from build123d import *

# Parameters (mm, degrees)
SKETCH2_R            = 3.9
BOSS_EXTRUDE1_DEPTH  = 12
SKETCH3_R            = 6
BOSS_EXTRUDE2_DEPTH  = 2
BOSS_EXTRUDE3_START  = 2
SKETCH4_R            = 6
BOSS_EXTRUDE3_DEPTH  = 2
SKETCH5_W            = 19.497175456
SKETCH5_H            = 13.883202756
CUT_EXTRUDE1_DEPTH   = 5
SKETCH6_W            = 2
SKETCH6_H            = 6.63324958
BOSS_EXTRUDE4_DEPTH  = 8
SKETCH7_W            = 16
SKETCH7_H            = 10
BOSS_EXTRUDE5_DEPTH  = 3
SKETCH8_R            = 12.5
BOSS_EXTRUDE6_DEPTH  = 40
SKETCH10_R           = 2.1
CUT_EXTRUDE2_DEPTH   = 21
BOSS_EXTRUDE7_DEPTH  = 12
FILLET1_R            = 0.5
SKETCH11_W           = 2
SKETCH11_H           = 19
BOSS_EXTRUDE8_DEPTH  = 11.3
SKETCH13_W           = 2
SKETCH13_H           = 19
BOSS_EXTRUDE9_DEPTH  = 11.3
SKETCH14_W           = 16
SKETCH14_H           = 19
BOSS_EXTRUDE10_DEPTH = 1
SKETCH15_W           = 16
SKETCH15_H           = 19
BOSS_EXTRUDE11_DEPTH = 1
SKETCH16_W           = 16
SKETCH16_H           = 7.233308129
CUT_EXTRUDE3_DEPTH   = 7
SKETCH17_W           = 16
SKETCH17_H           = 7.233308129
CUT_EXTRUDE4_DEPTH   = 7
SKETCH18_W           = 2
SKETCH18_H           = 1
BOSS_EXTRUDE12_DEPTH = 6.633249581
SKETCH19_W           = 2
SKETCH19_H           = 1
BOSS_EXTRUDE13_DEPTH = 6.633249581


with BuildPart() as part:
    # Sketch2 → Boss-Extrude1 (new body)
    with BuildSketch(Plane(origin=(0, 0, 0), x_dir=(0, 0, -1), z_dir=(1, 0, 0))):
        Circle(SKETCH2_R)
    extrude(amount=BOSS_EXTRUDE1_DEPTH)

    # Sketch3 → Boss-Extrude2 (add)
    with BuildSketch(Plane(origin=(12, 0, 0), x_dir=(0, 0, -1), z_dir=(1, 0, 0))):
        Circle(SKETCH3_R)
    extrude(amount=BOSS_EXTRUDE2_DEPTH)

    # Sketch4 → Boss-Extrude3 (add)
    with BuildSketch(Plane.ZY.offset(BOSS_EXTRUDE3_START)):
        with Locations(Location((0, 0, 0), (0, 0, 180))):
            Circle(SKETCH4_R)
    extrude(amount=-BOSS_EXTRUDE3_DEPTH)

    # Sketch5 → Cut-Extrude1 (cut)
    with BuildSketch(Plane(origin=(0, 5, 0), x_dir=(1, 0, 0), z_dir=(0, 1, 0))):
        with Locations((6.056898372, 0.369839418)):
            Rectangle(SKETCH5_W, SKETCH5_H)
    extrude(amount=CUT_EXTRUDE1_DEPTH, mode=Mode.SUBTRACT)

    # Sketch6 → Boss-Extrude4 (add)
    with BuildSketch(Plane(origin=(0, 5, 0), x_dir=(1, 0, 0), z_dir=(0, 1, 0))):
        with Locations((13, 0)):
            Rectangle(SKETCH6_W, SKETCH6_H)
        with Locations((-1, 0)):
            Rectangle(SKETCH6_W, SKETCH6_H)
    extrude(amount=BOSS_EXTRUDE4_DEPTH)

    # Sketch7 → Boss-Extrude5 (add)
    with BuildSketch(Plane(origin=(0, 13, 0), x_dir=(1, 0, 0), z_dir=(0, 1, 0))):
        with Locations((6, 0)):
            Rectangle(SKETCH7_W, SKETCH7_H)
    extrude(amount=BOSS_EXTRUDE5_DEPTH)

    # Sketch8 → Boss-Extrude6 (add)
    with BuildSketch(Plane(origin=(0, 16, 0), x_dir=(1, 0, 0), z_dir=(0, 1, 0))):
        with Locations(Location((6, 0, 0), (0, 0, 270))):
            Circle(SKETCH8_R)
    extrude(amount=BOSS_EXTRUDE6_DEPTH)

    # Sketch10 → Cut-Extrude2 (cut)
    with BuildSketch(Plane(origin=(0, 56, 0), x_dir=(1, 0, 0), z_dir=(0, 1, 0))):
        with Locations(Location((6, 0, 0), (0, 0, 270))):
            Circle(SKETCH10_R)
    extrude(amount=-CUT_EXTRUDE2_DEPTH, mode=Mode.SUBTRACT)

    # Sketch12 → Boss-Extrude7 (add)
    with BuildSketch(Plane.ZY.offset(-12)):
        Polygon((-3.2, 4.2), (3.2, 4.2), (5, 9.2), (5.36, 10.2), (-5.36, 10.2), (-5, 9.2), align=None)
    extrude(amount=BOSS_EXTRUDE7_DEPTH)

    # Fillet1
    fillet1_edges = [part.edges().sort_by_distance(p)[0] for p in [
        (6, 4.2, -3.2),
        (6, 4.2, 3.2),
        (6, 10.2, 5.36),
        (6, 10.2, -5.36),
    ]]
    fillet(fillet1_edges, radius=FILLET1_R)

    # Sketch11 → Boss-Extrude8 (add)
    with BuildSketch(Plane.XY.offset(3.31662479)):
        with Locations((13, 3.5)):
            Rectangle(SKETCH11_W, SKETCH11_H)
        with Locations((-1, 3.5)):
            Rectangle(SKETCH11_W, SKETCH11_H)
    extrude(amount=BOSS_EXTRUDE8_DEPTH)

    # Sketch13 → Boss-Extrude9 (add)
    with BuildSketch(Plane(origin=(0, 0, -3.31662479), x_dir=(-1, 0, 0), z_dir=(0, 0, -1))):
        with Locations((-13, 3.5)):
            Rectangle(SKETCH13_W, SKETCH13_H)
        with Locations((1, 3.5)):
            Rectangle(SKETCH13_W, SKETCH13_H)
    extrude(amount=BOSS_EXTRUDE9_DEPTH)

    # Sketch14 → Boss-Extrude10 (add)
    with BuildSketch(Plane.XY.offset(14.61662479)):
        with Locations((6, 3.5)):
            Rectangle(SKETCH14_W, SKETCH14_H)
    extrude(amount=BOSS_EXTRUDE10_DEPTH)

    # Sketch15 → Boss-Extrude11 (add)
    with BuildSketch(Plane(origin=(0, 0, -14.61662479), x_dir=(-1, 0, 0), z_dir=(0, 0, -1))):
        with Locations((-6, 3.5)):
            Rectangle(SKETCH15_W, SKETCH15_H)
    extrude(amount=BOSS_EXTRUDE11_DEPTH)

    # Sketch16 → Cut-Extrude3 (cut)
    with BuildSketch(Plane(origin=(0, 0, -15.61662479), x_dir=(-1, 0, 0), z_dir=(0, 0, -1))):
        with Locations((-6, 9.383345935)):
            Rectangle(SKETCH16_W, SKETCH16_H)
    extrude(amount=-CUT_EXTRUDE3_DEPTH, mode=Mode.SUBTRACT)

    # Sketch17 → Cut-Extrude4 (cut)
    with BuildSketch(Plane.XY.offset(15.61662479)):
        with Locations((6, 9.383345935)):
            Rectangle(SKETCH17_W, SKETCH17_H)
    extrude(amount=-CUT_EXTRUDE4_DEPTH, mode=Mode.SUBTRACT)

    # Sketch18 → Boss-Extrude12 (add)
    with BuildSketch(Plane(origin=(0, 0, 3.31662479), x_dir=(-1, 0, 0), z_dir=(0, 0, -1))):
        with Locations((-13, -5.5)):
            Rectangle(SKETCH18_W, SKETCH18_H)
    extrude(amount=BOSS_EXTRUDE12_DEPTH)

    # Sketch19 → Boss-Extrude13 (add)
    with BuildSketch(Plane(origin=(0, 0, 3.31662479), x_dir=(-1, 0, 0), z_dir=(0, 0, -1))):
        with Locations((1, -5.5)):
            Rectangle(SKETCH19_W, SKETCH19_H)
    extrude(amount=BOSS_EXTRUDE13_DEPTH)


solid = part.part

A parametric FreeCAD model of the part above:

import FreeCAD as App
import Part
import Sketcher
Q = App.Units.Quantity


def edges_at(feature, points):
    """Names of the edges that pass closest to the given points."""
    edges = feature.Shape.Edges
    near = lambda p: min(range(len(edges)), key=lambda i: edges[i].distToShape(Part.Vertex(*p))[0])
    return sorted({f"Edge{near(p) + 1}" for p in points})

doc = App.newDocument("Part")
body = doc.addObject("PartDesign::Body", "Body")

# Sketch on YZ plane
sketch1 = body.newObject("Sketcher::SketchObject", "Sketch")
sketch1.AttachmentSupport = (doc.getObject("YZ_Plane"), [""])
sketch1.MapMode = "FlatFace"
sketch1.addGeometry(Part.Circle(App.Vector(0, 0, 0), App.Vector(0, 0, 1), 3.9), False)
sketch1.addConstraint(Sketcher.Constraint("Coincident", 0, 3, -1, 1))
sketch1.addConstraint(Sketcher.Constraint("Diameter", 0, Q("7.8 mm")))
pad1 = body.newObject("PartDesign::Pad", "Pad")
pad1.Profile = sketch1
pad1.Length = 12

# Sketch on YZ plane
sketch2 = body.newObject("Sketcher::SketchObject", "Sketch001")
sketch2.AttachmentSupport = (doc.getObject("YZ_Plane"), [""])
sketch2.MapMode = "FlatFace"
sketch2.AttachmentOffset = App.Placement(App.Vector(0, 0, 12), App.Rotation())
sketch2.addGeometry(Part.Circle(App.Vector(0, 0, 0), App.Vector(0, 0, 1), 6), False)
sketch2.addConstraint(Sketcher.Constraint("Coincident", 0, 3, -1, 1))
sketch2.addConstraint(Sketcher.Constraint("Diameter", 0, Q("12 mm")))
pad2 = body.newObject("PartDesign::Pad", "Pad001")
pad2.Profile = sketch2
pad2.Length = 2

# Sketch on YZ plane
sketch3 = body.newObject("Sketcher::SketchObject", "Sketch002")
sketch3.AttachmentSupport = (doc.getObject("YZ_Plane"), [""])
sketch3.MapMode = "FlatFace"
sketch3.AttachmentOffset = App.Placement(App.Vector(0, 0, -2), App.Rotation())
sketch3.addGeometry(Part.Circle(App.Vector(0, 0, 0), App.Vector(0, 0, 1), 6), False)
sketch3.addConstraint(Sketcher.Constraint("Coincident", 0, 3, -1, 1))
sketch3.addConstraint(Sketcher.Constraint("Diameter", 0, Q("12 mm")))
pad3 = body.newObject("PartDesign::Pad", "Pad002")
pad3.Profile = sketch3
pad3.Length = 2

# Sketch on XZ plane
sketch4 = body.newObject("Sketcher::SketchObject", "Sketch003")
sketch4.AttachmentSupport = (doc.getObject("XZ_Plane"), [""])
sketch4.MapMode = "FlatFace"
sketch4.AttachmentOffset = App.Placement(App.Vector(0, 0, -5), App.Rotation())
sketch4.addGeometry(Part.LineSegment(App.Vector(-4, -7, 0), App.Vector(-4, 7, 0)), False)
sketch4.addGeometry(Part.LineSegment(App.Vector(-4, 7, 0), App.Vector(16, 7, 0)), False)
sketch4.addGeometry(Part.LineSegment(App.Vector(16, 7, 0), App.Vector(16, -7, 0)), False)
sketch4.addGeometry(Part.LineSegment(App.Vector(16, -7, 0), App.Vector(-4, -7, 0)), False)
sketch4.addConstraint(Sketcher.Constraint("Coincident", 0, 2, 1, 1))
sketch4.addConstraint(Sketcher.Constraint("Coincident", 1, 2, 2, 1))
sketch4.addConstraint(Sketcher.Constraint("Coincident", 2, 2, 3, 1))
sketch4.addConstraint(Sketcher.Constraint("Coincident", 3, 2, 0, 1))
sketch4.addConstraint(Sketcher.Constraint("Vertical", 0))
sketch4.addConstraint(Sketcher.Constraint("Horizontal", 1))
sketch4.addConstraint(Sketcher.Constraint("Vertical", 2))
sketch4.addConstraint(Sketcher.Constraint("Horizontal", 3))
sketch4.addConstraint(Sketcher.Constraint("DistanceX", 1, 1, 1, 2, Q("19.497175 mm")))
sketch4.addConstraint(Sketcher.Constraint("DistanceY", 0, 1, 0, 2, Q("13.883203 mm")))
sketch4.addConstraint(Sketcher.Constraint("DistanceX", 0, 2, -1, 1, Q("3.691689 mm")))
sketch4.addConstraint(Sketcher.Constraint("DistanceY", -1, 1, 0, 2, Q("6.571762 mm")))
pocket1 = body.newObject("PartDesign::Pocket", "Pocket")
pocket1.Profile = sketch4
pocket1.Length = 5

# Sketch on XZ plane
sketch5 = body.newObject("Sketcher::SketchObject", "Sketch004")
sketch5.AttachmentSupport = (doc.getObject("XZ_Plane"), [""])
sketch5.MapMode = "FlatFace"
sketch5.AttachmentOffset = App.Placement(App.Vector(0, 0, -5), App.Rotation())
sketch5.addGeometry(Part.LineSegment(App.Vector(12, -3.3, 0), App.Vector(12, 3.3, 0)), False)
sketch5.addGeometry(Part.LineSegment(App.Vector(12, 3.3, 0), App.Vector(14, 3.3, 0)), False)
sketch5.addGeometry(Part.LineSegment(App.Vector(14, 3.3, 0), App.Vector(14, -3.3, 0)), False)
sketch5.addGeometry(Part.LineSegment(App.Vector(14, -3.3, 0), App.Vector(12, -3.3, 0)), False)
sketch5.addGeometry(Part.LineSegment(App.Vector(-2, -3.3, 0), App.Vector(-2, 3.3, 0)), False)
sketch5.addGeometry(Part.LineSegment(App.Vector(-2, 3.3, 0), App.Vector(0, 3.3, 0)), False)
sketch5.addGeometry(Part.LineSegment(App.Vector(0, 3.3, 0), App.Vector(0, -3.3, 0)), False)
sketch5.addGeometry(Part.LineSegment(App.Vector(0, -3.3, 0), App.Vector(-2, -3.3, 0)), False)
sketch5.addConstraint(Sketcher.Constraint("Coincident", 0, 2, 1, 1))
sketch5.addConstraint(Sketcher.Constraint("Coincident", 1, 2, 2, 1))
sketch5.addConstraint(Sketcher.Constraint("Coincident", 2, 2, 3, 1))
sketch5.addConstraint(Sketcher.Constraint("Coincident", 3, 2, 0, 1))
sketch5.addConstraint(Sketcher.Constraint("Coincident", 4, 2, 5, 1))
sketch5.addConstraint(Sketcher.Constraint("Coincident", 5, 2, 6, 1))
sketch5.addConstraint(Sketcher.Constraint("Coincident", 6, 2, 7, 1))
sketch5.addConstraint(Sketcher.Constraint("Coincident", 7, 2, 4, 1))
sketch5.addConstraint(Sketcher.Constraint("Vertical", 0))
sketch5.addConstraint(Sketcher.Constraint("Horizontal", 1))
sketch5.addConstraint(Sketcher.Constraint("Vertical", 2))
sketch5.addConstraint(Sketcher.Constraint("Horizontal", 3))
sketch5.addConstraint(Sketcher.Constraint("Vertical", 4))
sketch5.addConstraint(Sketcher.Constraint("Horizontal", 5))
sketch5.addConstraint(Sketcher.Constraint("Vertical", 6))
sketch5.addConstraint(Sketcher.Constraint("Horizontal", 7))
sketch5.addConstraint(Sketcher.Constraint("Symmetric", 5, 2, 6, 2, -1, 1))
sketch5.addConstraint(Sketcher.Constraint("Horizontal", 1, 2, 4, 2))
sketch5.addConstraint(Sketcher.Constraint("Horizontal", 3, 2, 6, 2))
sketch5.addConstraint(Sketcher.Constraint("Equal", 3, 5))
sketch5.addConstraint(Sketcher.Constraint("DistanceX", 1, 1, 1, 2, Q("2 mm")))
sketch5.addConstraint(Sketcher.Constraint("DistanceX", -1, 1, 0, 2, Q("12 mm")))
sketch5.addConstraint(Sketcher.Constraint("DistanceY", 0, 1, 0, 2, Q("6.63325 mm")))
pad4 = body.newObject("PartDesign::Pad", "Pad003")
pad4.Profile = sketch5
pad4.Length = 8
pad4.Reversed = True

# Sketch on XZ plane
sketch6 = body.newObject("Sketcher::SketchObject", "Sketch005")
sketch6.AttachmentSupport = (doc.getObject("XZ_Plane"), [""])
sketch6.MapMode = "FlatFace"
sketch6.AttachmentOffset = App.Placement(App.Vector(0, 0, -13), App.Rotation())
sketch6.addGeometry(Part.LineSegment(App.Vector(-2, -5, 0), App.Vector(-2, 5, 0)), False)
sketch6.addGeometry(Part.LineSegment(App.Vector(-2, 5, 0), App.Vector(14, 5, 0)), False)
sketch6.addGeometry(Part.LineSegment(App.Vector(14, 5, 0), App.Vector(14, -5, 0)), False)
sketch6.addGeometry(Part.LineSegment(App.Vector(14, -5, 0), App.Vector(-2, -5, 0)), False)
sketch6.addConstraint(Sketcher.Constraint("Coincident", 0, 2, 1, 1))
sketch6.addConstraint(Sketcher.Constraint("Coincident", 1, 2, 2, 1))
sketch6.addConstraint(Sketcher.Constraint("Coincident", 2, 2, 3, 1))
sketch6.addConstraint(Sketcher.Constraint("Coincident", 3, 2, 0, 1))
sketch6.addConstraint(Sketcher.Constraint("Vertical", 0))
sketch6.addConstraint(Sketcher.Constraint("Horizontal", 1))
sketch6.addConstraint(Sketcher.Constraint("Vertical", 2))
sketch6.addConstraint(Sketcher.Constraint("Horizontal", 3))
sketch6.addConstraint(Sketcher.Constraint("DistanceX", 1, 1, 1, 2, Q("16 mm")))
sketch6.addConstraint(Sketcher.Constraint("DistanceY", 0, 1, 0, 2, Q("10 mm")))
sketch6.addConstraint(Sketcher.Constraint("DistanceX", 0, 2, -1, 1, Q("2 mm")))
sketch6.addConstraint(Sketcher.Constraint("DistanceY", -1, 1, 0, 2, Q("5 mm")))
pad5 = body.newObject("PartDesign::Pad", "Pad004")
pad5.Profile = sketch6
pad5.Length = 3
pad5.Reversed = True

# Sketch on XZ plane
sketch7 = body.newObject("Sketcher::SketchObject", "Sketch006")
sketch7.AttachmentSupport = (doc.getObject("XZ_Plane"), [""])
sketch7.MapMode = "FlatFace"
sketch7.AttachmentOffset = App.Placement(App.Vector(0, 0, -16), App.Rotation())
sketch7.addGeometry(Part.Circle(App.Vector(6, 0, 0), App.Vector(0, 0, 1), 12), False)
sketch7.addConstraint(Sketcher.Constraint("PointOnObject", 0, 3, -1))
sketch7.addConstraint(Sketcher.Constraint("Diameter", 0, Q("25 mm")))
sketch7.addConstraint(Sketcher.Constraint("DistanceX", -1, 1, 0, 3, Q("6 mm")))
pad6 = body.newObject("PartDesign::Pad", "Pad005")
pad6.Profile = sketch7
pad6.Length = 40
pad6.Reversed = True

# Sketch on XZ plane
sketch8 = body.newObject("Sketcher::SketchObject", "Sketch007")
sketch8.AttachmentSupport = (doc.getObject("XZ_Plane"), [""])
sketch8.MapMode = "FlatFace"
sketch8.AttachmentOffset = App.Placement(App.Vector(0, 0, -56), App.Rotation())
sketch8.addGeometry(Part.Circle(App.Vector(6, 0, 0), App.Vector(0, 0, 1), 2.1), False)
sketch8.addConstraint(Sketcher.Constraint("PointOnObject", 0, 3, -1))
sketch8.addConstraint(Sketcher.Constraint("Diameter", 0, Q("4.2 mm")))
sketch8.addConstraint(Sketcher.Constraint("DistanceX", -1, 1, 0, 3, Q("6 mm")))
pocket2 = body.newObject("PartDesign::Pocket", "Pocket001")
pocket2.Profile = sketch8
pocket2.Length = 21
pocket2.Reversed = True

# Sketch on YZ plane
sketch9 = body.newObject("Sketcher::SketchObject", "Sketch008")
sketch9.AttachmentSupport = (doc.getObject("YZ_Plane"), [""])
sketch9.MapMode = "FlatFace"
sketch9.AttachmentOffset = App.Placement(App.Vector(0, 0, 12), App.Rotation())
sketch9.addGeometry(Part.LineSegment(App.Vector(4, -3, 0), App.Vector(4, 3, 0)), False)
sketch9.addGeometry(Part.LineSegment(App.Vector(4, 3, 0), App.Vector(10, 5, 0)), False)
sketch9.addGeometry(Part.LineSegment(App.Vector(10, 5, 0), App.Vector(10, -5, 0)), False)
sketch9.addGeometry(Part.LineSegment(App.Vector(10, -5, 0), App.Vector(4, -3, 0)), False)
sketch9.addConstraint(Sketcher.Constraint("Coincident", 0, 2, 1, 1))
sketch9.addConstraint(Sketcher.Constraint("Coincident", 1, 2, 2, 1))
sketch9.addConstraint(Sketcher.Constraint("Coincident", 2, 2, 3, 1))
sketch9.addConstraint(Sketcher.Constraint("Coincident", 3, 2, 0, 1))
sketch9.addConstraint(Sketcher.Constraint("Vertical", 0))
sketch9.addConstraint(Sketcher.Constraint("Vertical", 2))
sketch9.addConstraint(Sketcher.Constraint("Equal", 1, 3))
sketch9.addConstraint(Sketcher.Constraint("DistanceY", 0, 1, 0, 2, Q("6.4 mm")))
sketch9.addConstraint(Sketcher.Constraint("DistanceX", 0, 2, 1, 2, Q("6 mm")))
sketch9.addConstraint(Sketcher.Constraint("DistanceY", 2, 2, 2, 1, Q("10.72 mm")))
sketch9.addConstraint(Sketcher.Constraint("DistanceX", -1, 1, 0, 2, Q("4.2 mm")))
sketch9.addConstraint(Sketcher.Constraint("DistanceY", -1, 1, 0, 2, Q("3.2 mm")))
pad7 = body.newObject("PartDesign::Pad", "Pad006")
pad7.Profile = sketch9
pad7.Length = 12
pad7.Reversed = True
doc.recompute()

fillet = body.newObject("PartDesign::Fillet", "Fillet")
fillet.Base = (pad7, edges_at(pad7, [
    (6, 4.2, -3.2),
    (6, 4.2, 3.2),
    (6, 10.2, 5.36),
    (6, 10.2, -5.36),
]))
fillet.Radius = 0.5

# Sketch on XY plane
sketch10 = body.newObject("Sketcher::SketchObject", "Sketch009")
sketch10.AttachmentSupport = (doc.getObject("XY_Plane"), [""])
sketch10.MapMode = "FlatFace"
sketch10.AttachmentOffset = App.Placement(App.Vector(0, 0, 3.316625), App.Rotation())
sketch10.addGeometry(Part.LineSegment(App.Vector(12, 13, 0), App.Vector(12, -6, 0)), False)
sketch10.addGeometry(Part.LineSegment(App.Vector(12, -6, 0), App.Vector(14, -6, 0)), False)
sketch10.addGeometry(Part.LineSegment(App.Vector(14, -6, 0), App.Vector(14, 13, 0)), False)
sketch10.addGeometry(Part.LineSegment(App.Vector(14, 13, 0), App.Vector(12, 13, 0)), False)
sketch10.addGeometry(Part.LineSegment(App.Vector(-2, 13, 0), App.Vector(-2, -6, 0)), False)
sketch10.addGeometry(Part.LineSegment(App.Vector(-2, -6, 0), App.Vector(0, -6, 0)), False)
sketch10.addGeometry(Part.LineSegment(App.Vector(0, -6, 0), App.Vector(0, 13, 0)), False)
sketch10.addGeometry(Part.LineSegment(App.Vector(0, 13, 0), App.Vector(-2, 13, 0)), False)
sketch10.addConstraint(Sketcher.Constraint("Coincident", 0, 2, 1, 1))
sketch10.addConstraint(Sketcher.Constraint("Coincident", 1, 2, 2, 1))
sketch10.addConstraint(Sketcher.Constraint("Coincident", 2, 2, 3, 1))
sketch10.addConstraint(Sketcher.Constraint("Coincident", 3, 2, 0, 1))
sketch10.addConstraint(Sketcher.Constraint("Coincident", 4, 2, 5, 1))
sketch10.addConstraint(Sketcher.Constraint("Coincident", 5, 2, 6, 1))
sketch10.addConstraint(Sketcher.Constraint("Coincident", 6, 2, 7, 1))
sketch10.addConstraint(Sketcher.Constraint("Coincident", 7, 2, 4, 1))
sketch10.addConstraint(Sketcher.Constraint("Vertical", 0))
sketch10.addConstraint(Sketcher.Constraint("Horizontal", 1))
sketch10.addConstraint(Sketcher.Constraint("Vertical", 2))
sketch10.addConstraint(Sketcher.Constraint("Horizontal", 3))
sketch10.addConstraint(Sketcher.Constraint("Vertical", 4))
sketch10.addConstraint(Sketcher.Constraint("Horizontal", 5))
sketch10.addConstraint(Sketcher.Constraint("Vertical", 6))
sketch10.addConstraint(Sketcher.Constraint("Horizontal", 7))
sketch10.addConstraint(Sketcher.Constraint("PointOnObject", 5, 2, -2))
sketch10.addConstraint(Sketcher.Constraint("Horizontal", 1, 2, 4, 2))
sketch10.addConstraint(Sketcher.Constraint("Horizontal", 3, 2, 6, 2))
sketch10.addConstraint(Sketcher.Constraint("Equal", 3, 5))
sketch10.addConstraint(Sketcher.Constraint("DistanceX", 1, 1, 1, 2, Q("2 mm")))
sketch10.addConstraint(Sketcher.Constraint("DistanceY", 0, 2, 0, 1, Q("19 mm")))
sketch10.addConstraint(Sketcher.Constraint("DistanceX", -1, 1, 0, 2, Q("12 mm")))
sketch10.addConstraint(Sketcher.Constraint("DistanceY", 0, 2, -1, 1, Q("6 mm")))
pad8 = body.newObject("PartDesign::Pad", "Pad007")
pad8.Profile = sketch10
pad8.Length = 11.3

# Sketch on XY plane
sketch11 = body.newObject("Sketcher::SketchObject", "Sketch010")
sketch11.AttachmentSupport = (doc.getObject("XY_Plane"), [""])
sketch11.MapMode = "FlatFace"
sketch11.AttachmentOffset = App.Placement(App.Vector(0, 0, -3.316625), App.Rotation())
sketch11.addGeometry(Part.LineSegment(App.Vector(14, 13, 0), App.Vector(14, -6, 0)), False)
sketch11.addGeometry(Part.LineSegment(App.Vector(14, -6, 0), App.Vector(12, -6, 0)), False)
sketch11.addGeometry(Part.LineSegment(App.Vector(12, -6, 0), App.Vector(12, 13, 0)), False)
sketch11.addGeometry(Part.LineSegment(App.Vector(12, 13, 0), App.Vector(14, 13, 0)), False)
sketch11.addGeometry(Part.LineSegment(App.Vector(0, 13, 0), App.Vector(0, -6, 0)), False)
sketch11.addGeometry(Part.LineSegment(App.Vector(0, -6, 0), App.Vector(-2, -6, 0)), False)
sketch11.addGeometry(Part.LineSegment(App.Vector(-2, -6, 0), App.Vector(-2, 13, 0)), False)
sketch11.addGeometry(Part.LineSegment(App.Vector(-2, 13, 0), App.Vector(0, 13, 0)), False)
sketch11.addConstraint(Sketcher.Constraint("Coincident", 0, 2, 1, 1))
sketch11.addConstraint(Sketcher.Constraint("Coincident", 1, 2, 2, 1))
sketch11.addConstraint(Sketcher.Constraint("Coincident", 2, 2, 3, 1))
sketch11.addConstraint(Sketcher.Constraint("Coincident", 3, 2, 0, 1))
sketch11.addConstraint(Sketcher.Constraint("Coincident", 4, 2, 5, 1))
sketch11.addConstraint(Sketcher.Constraint("Coincident", 5, 2, 6, 1))
sketch11.addConstraint(Sketcher.Constraint("Coincident", 6, 2, 7, 1))
sketch11.addConstraint(Sketcher.Constraint("Coincident", 7, 2, 4, 1))
sketch11.addConstraint(Sketcher.Constraint("Vertical", 0))
sketch11.addConstraint(Sketcher.Constraint("Horizontal", 1))
sketch11.addConstraint(Sketcher.Constraint("Vertical", 2))
sketch11.addConstraint(Sketcher.Constraint("Horizontal", 3))
sketch11.addConstraint(Sketcher.Constraint("Vertical", 4))
sketch11.addConstraint(Sketcher.Constraint("Horizontal", 5))
sketch11.addConstraint(Sketcher.Constraint("Vertical", 6))
sketch11.addConstraint(Sketcher.Constraint("Horizontal", 7))
sketch11.addConstraint(Sketcher.Constraint("PointOnObject", 4, 2, -2))
sketch11.addConstraint(Sketcher.Constraint("Horizontal", 1, 2, 4, 2))
sketch11.addConstraint(Sketcher.Constraint("Horizontal", 3, 2, 6, 2))
sketch11.addConstraint(Sketcher.Constraint("Equal", 3, 5))
sketch11.addConstraint(Sketcher.Constraint("DistanceX", 1, 2, 1, 1, Q("2 mm")))
sketch11.addConstraint(Sketcher.Constraint("DistanceY", 0, 2, 0, 1, Q("19 mm")))
sketch11.addConstraint(Sketcher.Constraint("DistanceX", -1, 1, 0, 2, Q("14 mm")))
sketch11.addConstraint(Sketcher.Constraint("DistanceY", 0, 2, -1, 1, Q("6 mm")))
pad9 = body.newObject("PartDesign::Pad", "Pad008")
pad9.Profile = sketch11
pad9.Length = 11.3
pad9.Reversed = True

# Sketch on XY plane
sketch12 = body.newObject("Sketcher::SketchObject", "Sketch011")
sketch12.AttachmentSupport = (doc.getObject("XY_Plane"), [""])
sketch12.MapMode = "FlatFace"
sketch12.AttachmentOffset = App.Placement(App.Vector(0, 0, 14.616625), App.Rotation())
sketch12.addGeometry(Part.LineSegment(App.Vector(-2, 13, 0), App.Vector(-2, -6, 0)), False)
sketch12.addGeometry(Part.LineSegment(App.Vector(-2, -6, 0), App.Vector(14, -6, 0)), False)
sketch12.addGeometry(Part.LineSegment(App.Vector(14, -6, 0), App.Vector(14, 13, 0)), False)
sketch12.addGeometry(Part.LineSegment(App.Vector(14, 13, 0), App.Vector(-2, 13, 0)), False)
sketch12.addConstraint(Sketcher.Constraint("Coincident", 0, 2, 1, 1))
sketch12.addConstraint(Sketcher.Constraint("Coincident", 1, 2, 2, 1))
sketch12.addConstraint(Sketcher.Constraint("Coincident", 2, 2, 3, 1))
sketch12.addConstraint(Sketcher.Constraint("Coincident", 3, 2, 0, 1))
sketch12.addConstraint(Sketcher.Constraint("Vertical", 0))
sketch12.addConstraint(Sketcher.Constraint("Horizontal", 1))
sketch12.addConstraint(Sketcher.Constraint("Vertical", 2))
sketch12.addConstraint(Sketcher.Constraint("Horizontal", 3))
sketch12.addConstraint(Sketcher.Constraint("DistanceX", 1, 1, 1, 2, Q("16 mm")))
sketch12.addConstraint(Sketcher.Constraint("DistanceY", 0, 2, 0, 1, Q("19 mm")))
sketch12.addConstraint(Sketcher.Constraint("DistanceX", 0, 2, -1, 1, Q("2 mm")))
sketch12.addConstraint(Sketcher.Constraint("DistanceY", 0, 2, -1, 1, Q("6 mm")))
pad10 = body.newObject("PartDesign::Pad", "Pad009")
pad10.Profile = sketch12
pad10.Length = 1

# Sketch on XY plane
sketch13 = body.newObject("Sketcher::SketchObject", "Sketch012")
sketch13.AttachmentSupport = (doc.getObject("XY_Plane"), [""])
sketch13.MapMode = "FlatFace"
sketch13.AttachmentOffset = App.Placement(App.Vector(0, 0, -14.616625), App.Rotation())
sketch13.addGeometry(Part.LineSegment(App.Vector(14, 13, 0), App.Vector(14, -6, 0)), False)
sketch13.addGeometry(Part.LineSegment(App.Vector(14, -6, 0), App.Vector(-2, -6, 0)), False)
sketch13.addGeometry(Part.LineSegment(App.Vector(-2, -6, 0), App.Vector(-2, 13, 0)), False)
sketch13.addGeometry(Part.LineSegment(App.Vector(-2, 13, 0), App.Vector(14, 13, 0)), False)
sketch13.addConstraint(Sketcher.Constraint("Coincident", 0, 2, 1, 1))
sketch13.addConstraint(Sketcher.Constraint("Coincident", 1, 2, 2, 1))
sketch13.addConstraint(Sketcher.Constraint("Coincident", 2, 2, 3, 1))
sketch13.addConstraint(Sketcher.Constraint("Coincident", 3, 2, 0, 1))
sketch13.addConstraint(Sketcher.Constraint("Vertical", 0))
sketch13.addConstraint(Sketcher.Constraint("Horizontal", 1))
sketch13.addConstraint(Sketcher.Constraint("Vertical", 2))
sketch13.addConstraint(Sketcher.Constraint("Horizontal", 3))
sketch13.addConstraint(Sketcher.Constraint("DistanceX", 1, 2, 1, 1, Q("16 mm")))
sketch13.addConstraint(Sketcher.Constraint("DistanceY", 0, 2, 0, 1, Q("19 mm")))
sketch13.addConstraint(Sketcher.Constraint("DistanceX", -1, 1, 0, 2, Q("14 mm")))
sketch13.addConstraint(Sketcher.Constraint("DistanceY", 0, 2, -1, 1, Q("6 mm")))
pad11 = body.newObject("PartDesign::Pad", "Pad010")
pad11.Profile = sketch13
pad11.Length = 1
pad11.Reversed = True

# Sketch on XY plane
sketch14 = body.newObject("Sketcher::SketchObject", "Sketch013")
sketch14.AttachmentSupport = (doc.getObject("XY_Plane"), [""])
sketch14.MapMode = "FlatFace"
sketch14.AttachmentOffset = App.Placement(App.Vector(0, 0, -15.616625), App.Rotation())
sketch14.addGeometry(Part.LineSegment(App.Vector(14, 13, 0), App.Vector(14, 6, 0)), False)
sketch14.addGeometry(Part.LineSegment(App.Vector(14, 6, 0), App.Vector(-2, 6, 0)), False)
sketch14.addGeometry(Part.LineSegment(App.Vector(-2, 6, 0), App.Vector(-2, 13, 0)), False)
sketch14.addGeometry(Part.LineSegment(App.Vector(-2, 13, 0), App.Vector(14, 13, 0)), False)
sketch14.addConstraint(Sketcher.Constraint("Coincident", 0, 2, 1, 1))
sketch14.addConstraint(Sketcher.Constraint("Coincident", 1, 2, 2, 1))
sketch14.addConstraint(Sketcher.Constraint("Coincident", 2, 2, 3, 1))
sketch14.addConstraint(Sketcher.Constraint("Coincident", 3, 2, 0, 1))
sketch14.addConstraint(Sketcher.Constraint("Vertical", 0))
sketch14.addConstraint(Sketcher.Constraint("Horizontal", 1))
sketch14.addConstraint(Sketcher.Constraint("Vertical", 2))
sketch14.addConstraint(Sketcher.Constraint("Horizontal", 3))
sketch14.addConstraint(Sketcher.Constraint("DistanceX", 1, 2, 1, 1, Q("16 mm")))
sketch14.addConstraint(Sketcher.Constraint("DistanceX", -1, 1, 0, 2, Q("14 mm")))
sketch14.addConstraint(Sketcher.Constraint("DistanceY", -1, 1, 2, 2, Q("13 mm")))
sketch14.addConstraint(Sketcher.Constraint("DistanceY", 0, 2, 0, 1, Q("7.233308 mm")))
pocket3 = body.newObject("PartDesign::Pocket", "Pocket002")
pocket3.Profile = sketch14
pocket3.Length = 7
pocket3.Reversed = True

# Sketch on XY plane
sketch15 = body.newObject("Sketcher::SketchObject", "Sketch014")
sketch15.AttachmentSupport = (doc.getObject("XY_Plane"), [""])
sketch15.MapMode = "FlatFace"
sketch15.AttachmentOffset = App.Placement(App.Vector(0, 0, 15.616625), App.Rotation())
sketch15.addGeometry(Part.LineSegment(App.Vector(-2, 13, 0), App.Vector(-2, 6, 0)), False)
sketch15.addGeometry(Part.LineSegment(App.Vector(-2, 6, 0), App.Vector(14, 6, 0)), False)
sketch15.addGeometry(Part.LineSegment(App.Vector(14, 6, 0), App.Vector(14, 13, 0)), False)
sketch15.addGeometry(Part.LineSegment(App.Vector(14, 13, 0), App.Vector(-2, 13, 0)), False)
sketch15.addConstraint(Sketcher.Constraint("Coincident", 0, 2, 1, 1))
sketch15.addConstraint(Sketcher.Constraint("Coincident", 1, 2, 2, 1))
sketch15.addConstraint(Sketcher.Constraint("Coincident", 2, 2, 3, 1))
sketch15.addConstraint(Sketcher.Constraint("Coincident", 3, 2, 0, 1))
sketch15.addConstraint(Sketcher.Constraint("Vertical", 0))
sketch15.addConstraint(Sketcher.Constraint("Horizontal", 1))
sketch15.addConstraint(Sketcher.Constraint("Vertical", 2))
sketch15.addConstraint(Sketcher.Constraint("Horizontal", 3))
sketch15.addConstraint(Sketcher.Constraint("DistanceX", 1, 1, 1, 2, Q("16 mm")))
sketch15.addConstraint(Sketcher.Constraint("DistanceX", 0, 2, -1, 1, Q("2 mm")))
sketch15.addConstraint(Sketcher.Constraint("DistanceY", -1, 1, 2, 2, Q("13 mm")))
sketch15.addConstraint(Sketcher.Constraint("DistanceY", 0, 2, 0, 1, Q("7.233308 mm")))
pocket4 = body.newObject("PartDesign::Pocket", "Pocket003")
pocket4.Profile = sketch15
pocket4.Length = 7

# Sketch on XY plane
sketch16 = body.newObject("Sketcher::SketchObject", "Sketch015")
sketch16.AttachmentSupport = (doc.getObject("XY_Plane"), [""])
sketch16.MapMode = "FlatFace"
sketch16.AttachmentOffset = App.Placement(App.Vector(0, 0, 3.316625), App.Rotation())
sketch16.addGeometry(Part.LineSegment(App.Vector(14, -5, 0), App.Vector(14, -6, 0)), False)
sketch16.addGeometry(Part.LineSegment(App.Vector(14, -6, 0), App.Vector(12, -6, 0)), False)
sketch16.addGeometry(Part.LineSegment(App.Vector(12, -6, 0), App.Vector(12, -5, 0)), False)
sketch16.addGeometry(Part.LineSegment(App.Vector(12, -5, 0), App.Vector(14, -5, 0)), False)
sketch16.addConstraint(Sketcher.Constraint("Coincident", 0, 2, 1, 1))
sketch16.addConstraint(Sketcher.Constraint("Coincident", 1, 2, 2, 1))
sketch16.addConstraint(Sketcher.Constraint("Coincident", 2, 2, 3, 1))
sketch16.addConstraint(Sketcher.Constraint("Coincident", 3, 2, 0, 1))
sketch16.addConstraint(Sketcher.Constraint("Vertical", 0))
sketch16.addConstraint(Sketcher.Constraint("Horizontal", 1))
sketch16.addConstraint(Sketcher.Constraint("Vertical", 2))
sketch16.addConstraint(Sketcher.Constraint("Horizontal", 3))
sketch16.addConstraint(Sketcher.Constraint("DistanceX", 1, 2, 1, 1, Q("2 mm")))
sketch16.addConstraint(Sketcher.Constraint("DistanceY", 0, 2, 0, 1, Q("1 mm")))
sketch16.addConstraint(Sketcher.Constraint("DistanceX", -1, 1, 0, 2, Q("14 mm")))
sketch16.addConstraint(Sketcher.Constraint("DistanceY", 0, 2, -1, 1, Q("6 mm")))
pad12 = body.newObject("PartDesign::Pad", "Pad011")
pad12.Profile = sketch16
pad12.Length = 6.63325
pad12.Reversed = True

# Sketch on XY plane
sketch17 = body.newObject("Sketcher::SketchObject", "Sketch016")
sketch17.AttachmentSupport = (doc.getObject("XY_Plane"), [""])
sketch17.MapMode = "FlatFace"
sketch17.AttachmentOffset = App.Placement(App.Vector(0, 0, 3.316625), App.Rotation())
sketch17.addGeometry(Part.LineSegment(App.Vector(0, -5, 0), App.Vector(0, -6, 0)), False)
sketch17.addGeometry(Part.LineSegment(App.Vector(0, -6, 0), App.Vector(-2, -6, 0)), False)
sketch17.addGeometry(Part.LineSegment(App.Vector(-2, -6, 0), App.Vector(-2, -5, 0)), False)
sketch17.addGeometry(Part.LineSegment(App.Vector(-2, -5, 0), App.Vector(0, -5, 0)), False)
sketch17.addConstraint(Sketcher.Constraint("Coincident", 0, 2, 1, 1))
sketch17.addConstraint(Sketcher.Constraint("Coincident", 1, 2, 2, 1))
sketch17.addConstraint(Sketcher.Constraint("Coincident", 2, 2, 3, 1))
sketch17.addConstraint(Sketcher.Constraint("Coincident", 3, 2, 0, 1))
sketch17.addConstraint(Sketcher.Constraint("Vertical", 0))
sketch17.addConstraint(Sketcher.Constraint("Horizontal", 1))
sketch17.addConstraint(Sketcher.Constraint("Vertical", 2))
sketch17.addConstraint(Sketcher.Constraint("Horizontal", 3))
sketch17.addConstraint(Sketcher.Constraint("PointOnObject", 0, 2, -2))
sketch17.addConstraint(Sketcher.Constraint("DistanceX", 1, 2, 1, 1, Q("2 mm")))
sketch17.addConstraint(Sketcher.Constraint("DistanceY", 0, 2, 0, 1, Q("1 mm")))
sketch17.addConstraint(Sketcher.Constraint("DistanceY", 0, 2, -1, 1, Q("6 mm")))
pad13 = body.newObject("PartDesign::Pad", "Pad012")
pad13.Profile = sketch17
pad13.Length = 6.63325
pad13.Reversed = True

doc.recompute()
